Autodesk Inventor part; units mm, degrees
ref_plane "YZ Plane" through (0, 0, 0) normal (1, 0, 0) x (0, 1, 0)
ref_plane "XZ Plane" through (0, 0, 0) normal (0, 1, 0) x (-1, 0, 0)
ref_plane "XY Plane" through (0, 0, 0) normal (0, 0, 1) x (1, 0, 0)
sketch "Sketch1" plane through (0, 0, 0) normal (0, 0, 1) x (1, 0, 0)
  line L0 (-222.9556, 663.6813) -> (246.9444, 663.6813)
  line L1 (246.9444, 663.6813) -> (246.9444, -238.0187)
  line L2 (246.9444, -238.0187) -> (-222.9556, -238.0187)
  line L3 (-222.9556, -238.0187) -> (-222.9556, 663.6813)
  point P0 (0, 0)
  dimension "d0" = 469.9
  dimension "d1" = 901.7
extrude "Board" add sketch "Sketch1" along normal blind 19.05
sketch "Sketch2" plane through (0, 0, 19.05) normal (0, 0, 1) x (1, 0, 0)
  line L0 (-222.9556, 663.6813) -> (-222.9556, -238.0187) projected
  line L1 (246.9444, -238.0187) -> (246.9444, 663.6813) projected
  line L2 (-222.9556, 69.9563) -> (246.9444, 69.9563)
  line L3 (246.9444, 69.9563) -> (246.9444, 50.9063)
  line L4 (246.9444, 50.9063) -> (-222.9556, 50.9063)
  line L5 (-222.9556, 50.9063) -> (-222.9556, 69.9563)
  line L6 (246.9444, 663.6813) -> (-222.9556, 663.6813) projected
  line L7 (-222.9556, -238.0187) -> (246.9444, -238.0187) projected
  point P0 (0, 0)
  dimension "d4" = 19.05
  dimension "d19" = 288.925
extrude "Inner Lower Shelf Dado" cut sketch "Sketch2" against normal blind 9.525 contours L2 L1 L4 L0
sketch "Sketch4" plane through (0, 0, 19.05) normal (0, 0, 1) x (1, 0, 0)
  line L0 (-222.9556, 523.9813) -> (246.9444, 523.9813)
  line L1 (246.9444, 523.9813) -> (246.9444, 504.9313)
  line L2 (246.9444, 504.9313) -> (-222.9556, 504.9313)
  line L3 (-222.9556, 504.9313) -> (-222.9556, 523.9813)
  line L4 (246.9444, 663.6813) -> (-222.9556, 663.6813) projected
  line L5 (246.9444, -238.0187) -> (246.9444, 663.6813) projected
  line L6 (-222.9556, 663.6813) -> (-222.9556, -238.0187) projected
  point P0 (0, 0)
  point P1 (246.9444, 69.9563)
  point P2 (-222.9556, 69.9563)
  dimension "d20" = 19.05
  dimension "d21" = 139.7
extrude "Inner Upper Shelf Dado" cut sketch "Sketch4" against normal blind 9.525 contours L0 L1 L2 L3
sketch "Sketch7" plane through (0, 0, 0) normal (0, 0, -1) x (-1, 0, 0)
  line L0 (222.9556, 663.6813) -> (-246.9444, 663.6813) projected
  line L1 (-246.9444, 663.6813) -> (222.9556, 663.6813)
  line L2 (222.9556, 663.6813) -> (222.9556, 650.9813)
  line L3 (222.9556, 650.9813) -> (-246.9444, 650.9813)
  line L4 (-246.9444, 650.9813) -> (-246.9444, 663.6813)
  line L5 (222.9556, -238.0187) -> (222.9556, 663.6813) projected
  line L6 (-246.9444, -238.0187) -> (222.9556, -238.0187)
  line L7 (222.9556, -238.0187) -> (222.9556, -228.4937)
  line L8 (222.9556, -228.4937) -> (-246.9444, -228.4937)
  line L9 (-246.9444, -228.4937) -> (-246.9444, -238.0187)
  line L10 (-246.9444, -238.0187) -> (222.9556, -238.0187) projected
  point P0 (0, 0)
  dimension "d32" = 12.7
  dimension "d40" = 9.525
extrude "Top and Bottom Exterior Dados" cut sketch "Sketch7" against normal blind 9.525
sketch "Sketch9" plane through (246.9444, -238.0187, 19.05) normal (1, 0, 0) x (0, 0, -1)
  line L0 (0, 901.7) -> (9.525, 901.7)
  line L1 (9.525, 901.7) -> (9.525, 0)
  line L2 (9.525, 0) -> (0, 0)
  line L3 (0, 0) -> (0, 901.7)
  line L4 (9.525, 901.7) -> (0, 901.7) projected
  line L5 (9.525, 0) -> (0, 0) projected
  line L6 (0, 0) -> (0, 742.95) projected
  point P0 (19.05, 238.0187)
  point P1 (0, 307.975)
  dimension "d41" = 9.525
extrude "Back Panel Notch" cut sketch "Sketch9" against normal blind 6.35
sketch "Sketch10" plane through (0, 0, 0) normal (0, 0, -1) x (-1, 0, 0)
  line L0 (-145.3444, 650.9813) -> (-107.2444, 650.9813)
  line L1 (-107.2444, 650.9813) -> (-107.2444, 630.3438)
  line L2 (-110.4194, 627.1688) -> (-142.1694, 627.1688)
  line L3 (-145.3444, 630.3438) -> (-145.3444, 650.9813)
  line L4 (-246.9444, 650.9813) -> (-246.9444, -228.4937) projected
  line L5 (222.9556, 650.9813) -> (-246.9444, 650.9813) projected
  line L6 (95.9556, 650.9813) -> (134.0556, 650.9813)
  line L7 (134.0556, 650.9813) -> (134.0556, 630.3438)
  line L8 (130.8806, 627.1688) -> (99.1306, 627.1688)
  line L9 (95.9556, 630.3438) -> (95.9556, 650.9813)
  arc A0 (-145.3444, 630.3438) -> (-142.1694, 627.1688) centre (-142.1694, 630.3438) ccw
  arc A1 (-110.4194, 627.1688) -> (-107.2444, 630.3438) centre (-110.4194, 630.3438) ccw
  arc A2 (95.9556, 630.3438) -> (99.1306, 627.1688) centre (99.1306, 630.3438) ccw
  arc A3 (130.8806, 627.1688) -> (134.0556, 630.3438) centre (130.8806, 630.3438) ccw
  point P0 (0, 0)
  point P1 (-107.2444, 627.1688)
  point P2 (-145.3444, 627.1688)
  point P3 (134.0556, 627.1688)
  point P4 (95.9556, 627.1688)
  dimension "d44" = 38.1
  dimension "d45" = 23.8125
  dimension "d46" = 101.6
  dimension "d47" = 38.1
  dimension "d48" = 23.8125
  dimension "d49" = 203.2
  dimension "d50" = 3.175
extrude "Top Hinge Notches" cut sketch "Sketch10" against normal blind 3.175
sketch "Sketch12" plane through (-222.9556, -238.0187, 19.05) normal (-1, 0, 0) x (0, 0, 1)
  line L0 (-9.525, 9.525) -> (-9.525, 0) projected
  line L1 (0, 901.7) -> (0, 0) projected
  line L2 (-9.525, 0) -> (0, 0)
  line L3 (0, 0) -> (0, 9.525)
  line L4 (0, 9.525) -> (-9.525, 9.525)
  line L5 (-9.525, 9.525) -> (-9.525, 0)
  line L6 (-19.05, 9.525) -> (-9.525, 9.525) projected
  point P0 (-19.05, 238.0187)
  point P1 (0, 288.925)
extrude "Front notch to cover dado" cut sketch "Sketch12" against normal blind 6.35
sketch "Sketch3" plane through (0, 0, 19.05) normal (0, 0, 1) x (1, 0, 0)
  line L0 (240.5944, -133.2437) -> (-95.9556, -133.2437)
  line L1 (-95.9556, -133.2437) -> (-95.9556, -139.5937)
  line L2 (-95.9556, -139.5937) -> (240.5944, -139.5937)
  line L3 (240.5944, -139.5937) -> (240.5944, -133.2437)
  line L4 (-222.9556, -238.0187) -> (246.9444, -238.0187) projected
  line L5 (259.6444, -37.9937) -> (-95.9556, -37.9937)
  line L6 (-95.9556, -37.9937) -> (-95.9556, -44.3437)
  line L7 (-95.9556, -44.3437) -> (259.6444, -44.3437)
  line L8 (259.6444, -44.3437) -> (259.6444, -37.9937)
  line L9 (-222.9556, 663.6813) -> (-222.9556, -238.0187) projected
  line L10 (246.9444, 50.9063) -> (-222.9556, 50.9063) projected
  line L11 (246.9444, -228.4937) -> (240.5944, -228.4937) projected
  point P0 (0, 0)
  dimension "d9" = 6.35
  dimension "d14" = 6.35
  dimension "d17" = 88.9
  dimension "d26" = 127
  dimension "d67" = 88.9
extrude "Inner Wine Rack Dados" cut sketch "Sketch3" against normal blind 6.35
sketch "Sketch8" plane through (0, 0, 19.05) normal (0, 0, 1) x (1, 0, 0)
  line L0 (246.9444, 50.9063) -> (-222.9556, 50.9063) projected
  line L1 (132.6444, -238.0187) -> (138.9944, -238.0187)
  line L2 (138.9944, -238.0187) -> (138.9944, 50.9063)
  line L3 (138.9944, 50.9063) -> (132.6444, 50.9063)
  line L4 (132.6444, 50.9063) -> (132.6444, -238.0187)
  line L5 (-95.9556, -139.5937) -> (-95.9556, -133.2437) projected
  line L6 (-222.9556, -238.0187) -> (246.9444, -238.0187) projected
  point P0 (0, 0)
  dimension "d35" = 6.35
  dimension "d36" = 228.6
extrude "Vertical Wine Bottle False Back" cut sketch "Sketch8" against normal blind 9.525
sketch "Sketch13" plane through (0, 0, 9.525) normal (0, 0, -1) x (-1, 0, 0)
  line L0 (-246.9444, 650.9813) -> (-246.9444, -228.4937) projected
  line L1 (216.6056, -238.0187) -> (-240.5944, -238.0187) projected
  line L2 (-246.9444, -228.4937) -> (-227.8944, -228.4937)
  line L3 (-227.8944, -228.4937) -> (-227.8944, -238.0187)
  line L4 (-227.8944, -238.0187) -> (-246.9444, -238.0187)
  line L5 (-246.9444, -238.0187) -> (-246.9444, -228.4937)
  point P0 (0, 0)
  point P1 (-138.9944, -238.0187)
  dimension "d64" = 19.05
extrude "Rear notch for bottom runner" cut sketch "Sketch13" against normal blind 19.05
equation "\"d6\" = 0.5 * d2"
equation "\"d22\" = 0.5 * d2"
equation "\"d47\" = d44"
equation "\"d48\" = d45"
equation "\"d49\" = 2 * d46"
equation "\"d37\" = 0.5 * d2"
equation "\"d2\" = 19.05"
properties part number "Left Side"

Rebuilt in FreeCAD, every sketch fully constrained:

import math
import FreeCAD as App
import Part
import Sketcher

V = App.Vector
Q = App.Units.Quantity

doc = App.newDocument("Part")
body = doc.addObject("PartDesign::Body", "Body")

sketch1 = body.newObject("Sketcher::SketchObject", "Sketch")
sketch1.AttachmentSupport = (doc.getObject("XY_Plane"), [""])
sketch1.MapMode = "FlatFace"
sketch1.addGeometry([
    Part.LineSegment(V(247, 664, 0), V(-223, 664, 0)),
    Part.LineSegment(V(-223, 664, 0), V(-223, -238, 0)),
    Part.LineSegment(V(-223, -238, 0), V(247, -238, 0)),
    Part.LineSegment(V(247, -238, 0), V(247, 664, 0)),
], False)
sketch1.addConstraint([
    Sketcher.Constraint("Coincident", 0, 2, 1, 1),
    Sketcher.Constraint("Coincident", 1, 2, 2, 1),
    Sketcher.Constraint("Coincident", 2, 2, 3, 1),
    Sketcher.Constraint("Coincident", 3, 2, 0, 1),
    Sketcher.Constraint("Horizontal", 0),
    Sketcher.Constraint("Vertical", 1),
    Sketcher.Constraint("Horizontal", 2),
    Sketcher.Constraint("Vertical", 3),
    Sketcher.Constraint("DistanceX", 0, 2, 0, 1, Q("18.5 in")),
    Sketcher.Constraint("DistanceY", 1, 2, 1, 1, Q("35.5 in")),
    Sketcher.Constraint("DistanceX", 0, 2, -1, 1, 222.9556),
    Sketcher.Constraint("DistanceY", -1, 1, 0, 2, 663.6813),
])
pad1 = body.newObject("PartDesign::Pad", "Pad")
pad1.Profile = sketch1
pad1.Length = Q("0.75 in")

sketch2 = body.newObject("Sketcher::SketchObject", "Sketch001")
sketch2.AttachmentSupport = (doc.getObject("XY_Plane"), [""])
sketch2.MapMode = "FlatFace"
sketch2.AttachmentOffset = App.Placement(V(0, 0, 0.75 * 25.4), App.Rotation())
sketch2.addGeometry([
    Part.LineSegment(V(247, 70, 0), V(-223, 70, 0)),
    Part.LineSegment(V(-223, 70, 0), V(-223, 51, 0)),
    Part.LineSegment(V(-223, 51, 0), V(247, 51, 0)),
    Part.LineSegment(V(247, 51, 0), V(247, 70, 0)),
], False)
sketch2.addConstraint([
    Sketcher.Constraint("Coincident", 0, 2, 1, 1),
    Sketcher.Constraint("Coincident", 1, 2, 2, 1),
    Sketcher.Constraint("Coincident", 2, 2, 3, 1),
    Sketcher.Constraint("Coincident", 3, 2, 0, 1),
    Sketcher.Constraint("Horizontal", 0),
    Sketcher.Constraint("Vertical", 1),
    Sketcher.Constraint("Horizontal", 2),
    Sketcher.Constraint("Vertical", 3),
    Sketcher.Constraint("DistanceY", 1, 2, 1, 1, Q("0.75 in")),
    Sketcher.Constraint("DistanceX", 0, 2, 0, 1, Q("18.5 in")),
    Sketcher.Constraint("DistanceX", 0, 2, -1, 1, 222.9556),
    Sketcher.Constraint("DistanceY", -1, 1, 0, 2, 69.9563),
])
pocket1 = body.newObject("PartDesign::Pocket", "Pocket")
pocket1.Profile = sketch2
pocket1.Length = Q("0.375 in")

sketch3 = body.newObject("Sketcher::SketchObject", "Sketch002")
sketch3.AttachmentSupport = (doc.getObject("XY_Plane"), [""])
sketch3.MapMode = "FlatFace"
sketch3.AttachmentOffset = App.Placement(V(0, 0, 0.75 * 25.4), App.Rotation())
sketch3.addGeometry([
    Part.LineSegment(V(247, 524, 0), V(-223, 524, 0)),
    Part.LineSegment(V(-223, 524, 0), V(-223, 505, 0)),
    Part.LineSegment(V(-223, 505, 0), V(247, 505, 0)),
    Part.LineSegment(V(247, 505, 0), V(247, 524, 0)),
], False)
sketch3.addConstraint([
    Sketcher.Constraint("Coincident", 0, 2, 1, 1),
    Sketcher.Constraint("Coincident", 1, 2, 2, 1),
    Sketcher.Constraint("Coincident", 2, 2, 3, 1),
    Sketcher.Constraint("Coincident", 3, 2, 0, 1),
    Sketcher.Constraint("Horizontal", 0),
    Sketcher.Constraint("Vertical", 1),
    Sketcher.Constraint("Horizontal", 2),
    Sketcher.Constraint("Vertical", 3),
    Sketcher.Constraint("DistanceY", 1, 2, 1, 1, Q("0.75 in")),
    Sketcher.Constraint("DistanceX", 0, 2, 0, 1, Q("18.5 in")),
    Sketcher.Constraint("DistanceX", 0, 2, -1, 1, 222.9556),
    Sketcher.Constraint("DistanceY", -1, 1, 0, 2, 523.9813),
])
pocket2 = body.newObject("PartDesign::Pocket", "Pocket001")
pocket2.Profile = sketch3
pocket2.Length = Q("0.375 in")

sketch4 = body.newObject("Sketcher::SketchObject", "Sketch003")
sketch4.AttachmentSupport = (doc.getObject("XY_Plane"), [""])
sketch4.MapMode = "FlatFace"
sketch4.addGeometry([
    Part.LineSegment(V(-223, 651, 0), V(-223, 664, 0)),
    Part.LineSegment(V(-223, 664, 0), V(247, 664, 0)),
    Part.LineSegment(V(247, 664, 0), V(247, 651, 0)),
    Part.LineSegment(V(247, 651, 0), V(-223, 651, 0)),
    Part.LineSegment(V(-223, -238, 0), V(-223, -228, 0)),
    Part.LineSegment(V(-223, -228, 0), V(247, -228, 0)),
    Part.LineSegment(V(247, -228, 0), V(247, -238, 0)),
    Part.LineSegment(V(247, -238, 0), V(-223, -238, 0)),
], False)
sketch4.addConstraint([
    Sketcher.Constraint("Coincident", 0, 2, 1, 1),
    Sketcher.Constraint("Coincident", 1, 2, 2, 1),
    Sketcher.Constraint("Coincident", 2, 2, 3, 1),
    Sketcher.Constraint("Coincident", 3, 2, 0, 1),
    Sketcher.Constraint("Coincident", 4, 2, 5, 1),
    Sketcher.Constraint("Coincident", 5, 2, 6, 1),
    Sketcher.Constraint("Coincident", 6, 2, 7, 1),
    Sketcher.Constraint("Coincident", 7, 2, 4, 1),
    Sketcher.Constraint("Vertical", 0),
    Sketcher.Constraint("Horizontal", 1),
    Sketcher.Constraint("Vertical", 2),
    Sketcher.Constraint("Horizontal", 3),
    Sketcher.Constraint("Vertical", 4),
    Sketcher.Constraint("Horizontal", 5),
    Sketcher.Constraint("Vertical", 6),
    Sketcher.Constraint("Horizontal", 7),
    Sketcher.Constraint("Vertical", 3, 2, 4, 2),
    Sketcher.Constraint("Vertical", 2, 2, 5, 2),
    Sketcher.Constraint("DistanceY", 0, 1, 0, 2, Q("0.5 in")),
    Sketcher.Constraint("DistanceY", 4, 1, 4, 2, Q("0.375 in")),
    Sketcher.Constraint("DistanceX", 1, 1, 1, 2, Q("18.5 in")),
    Sketcher.Constraint("DistanceY", 6, 2, 2, 2, Q("35 in")),
    Sketcher.Constraint("DistanceX", 0, 2, -1, 1, 222.9556),
    Sketcher.Constraint("DistanceY", -1, 1, 0, 2, 663.6813),
])
pocket3 = body.newObject("PartDesign::Pocket", "Pocket002")
pocket3.Profile = sketch4
pocket3.Length = Q("0.375 in")
pocket3.Reversed = True

sketch5 = body.newObject("Sketcher::SketchObject", "Sketch004")
sketch5.AttachmentSupport = (doc.getObject("YZ_Plane"), [""])
sketch5.MapMode = "FlatFace"
sketch5.AttachmentOffset = App.Placement(V(0, 0, 246.9444), App.Rotation())
sketch5.addGeometry([
    Part.LineSegment(V(664, 10, 0), V(664, 19, 0)),
    Part.LineSegment(V(664, 19, 0), V(-238, 19, 0)),
    Part.LineSegment(V(-238, 19, 0), V(-238, 10, 0)),
    Part.LineSegment(V(-238, 10, 0), V(664, 10, 0)),
], False)
sketch5.addConstraint([
    Sketcher.Constraint("Coincident", 0, 2, 1, 1),
    Sketcher.Constraint("Coincident", 1, 2, 2, 1),
    Sketcher.Constraint("Coincident", 2, 2, 3, 1),
    Sketcher.Constraint("Coincident", 3, 2, 0, 1),
    Sketcher.Constraint("Vertical", 0),
    Sketcher.Constraint("Horizontal", 1),
    Sketcher.Constraint("Vertical", 2),
    Sketcher.Constraint("Horizontal", 3),
    Sketcher.Constraint("DistanceY", 0, 1, 0, 2, Q("0.375 in")),
    Sketcher.Constraint("DistanceX", 1, 2, 1, 1, Q("35.5 in")),
    Sketcher.Constraint("DistanceY", -1, 1, 2, 2, Q("0.375 in")),
    Sketcher.Constraint("DistanceX", -1, 1, 0, 2, 663.6813),
])
pocket4 = body.newObject("PartDesign::Pocket", "Pocket003")
pocket4.Profile = sketch5
pocket4.Length = Q("0.25 in")

sketch6 = body.newObject("Sketcher::SketchObject", "Sketch005")
sketch6.AttachmentSupport = (doc.getObject("XY_Plane"), [""])
sketch6.MapMode = "FlatFace"
sketch6.addGeometry([
    Part.LineSegment(V(-134.1, 651, 0), V(-96, 651, 0)),
    Part.LineSegment(V(-96, 651, 0), V(-96, 630.3, 0)),
    Part.ArcOfCircle(Part.Circle(V(-99.1, 630.3, 0), V(0, 0, 1), 3.2), math.radians(-90), math.radians(0)),
    Part.LineSegment(V(-99.1, 627.2, 0), V(-130.9, 627.2, 0)),
    Part.ArcOfCircle(Part.Circle(V(-130.9, 630.3, 0), V(0, 0, 1), 3.2), math.radians(180), math.radians(270)),
    Part.LineSegment(V(-134.1, 630.3, 0), V(-134.1, 651, 0)),
    Part.LineSegment(V(107.2, 651, 0), V(145.3, 651, 0)),
    Part.LineSegment(V(145.3, 651, 0), V(145.3, 630.3, 0)),
    Part.ArcOfCircle(Part.Circle(V(142.2, 630.3, 0), V(0, 0, 1), 3.2), math.radians(-90), math.radians(0)),
    Part.LineSegment(V(142.2, 627.2, 0), V(110.4, 627.2, 0)),
    Part.ArcOfCircle(Part.Circle(V(110.4, 630.3, 0), V(0, 0, 1), 3.2), math.radians(180), math.radians(270)),
    Part.LineSegment(V(107.2, 630.3, 0), V(107.2, 651, 0)),
], False)
sketch6.addConstraint([
    Sketcher.Constraint("Coincident", 0, 2, 1, 1),
    Sketcher.Constraint("Tangent", 1, 2, 2, 2),
    Sketcher.Constraint("Tangent", 2, 1, 3, 1),
    Sketcher.Constraint("Tangent", 3, 2, 4, 2),
    Sketcher.Constraint("Tangent", 4, 1, 5, 1),
    Sketcher.Constraint("Coincident", 5, 2, 0, 1),
    Sketcher.Constraint("Coincident", 6, 2, 7, 1),
    Sketcher.Constraint("Tangent", 7, 2, 8, 2),
    Sketcher.Constraint("Tangent", 8, 1, 9, 1),
    Sketcher.Constraint("Tangent", 9, 2, 10, 2),
    Sketcher.Constraint("Tangent", 10, 1, 11, 1),
    Sketcher.Constraint("Coincident", 11, 2, 6, 1),
    Sketcher.Constraint("Horizontal", 0),
    Sketcher.Constraint("Vertical", 1),
    Sketcher.Constraint("Horizontal", 3),
    Sketcher.Constraint("Vertical", 5),
    Sketcher.Constraint("Horizontal", 6),
    Sketcher.Constraint("Vertical", 7),
    Sketcher.Constraint("Horizontal", 9),
    Sketcher.Constraint("Vertical", 11),
    Sketcher.Constraint("Equal", 2, 4),
    Sketcher.Constraint("Equal", 4, 8),
    Sketcher.Constraint("Equal", 8, 10),
    Sketcher.Constraint("Horizontal", 4, 3, 8, 3),
    Sketcher.Constraint("Horizontal", 5, 2, 6, 2),
    Sketcher.Constraint("Equal", 0, 6),
    Sketcher.Constraint("DistanceX", 0, 1, 0, 2, Q("1.5 in")),
    Sketcher.Constraint("Radius", 2, Q("0.125 in")),
    Sketcher.Constraint("DistanceY", 2, 1, 0, 2, Q("0.9375 in")),
    Sketcher.Constraint("DistanceX", 2, 3, 8, 3, Q("9.5 in")),
    Sketcher.Constraint("DistanceX", 2, 3, -1, 1, 99.1306),
    Sketcher.Constraint("DistanceY", -1, 1, 2, 3, 630.3438),
])
pocket5 = body.newObject("PartDesign::Pocket", "Pocket004")
pocket5.Profile = sketch6
pocket5.Length = Q("0.125 in")
pocket5.Reversed = True

sketch7 = body.newObject("Sketcher::SketchObject", "Sketch006")
sketch7.AttachmentSupport = (doc.getObject("YZ_Plane"), [""])
sketch7.MapMode = "FlatFace"
sketch7.AttachmentOffset = App.Placement(V(0, 0, -222.9556), App.Rotation())
sketch7.addGeometry([
    Part.LineSegment(V(-228, 19, 0), V(-228, 10, 0)),
    Part.LineSegment(V(-228, 10, 0), V(-238, 10, 0)),
    Part.LineSegment(V(-238, 10, 0), V(-238, 19, 0)),
    Part.LineSegment(V(-238, 19, 0), V(-228, 19, 0)),
], False)
sketch7.addConstraint([
    Sketcher.Constraint("Coincident", 0, 2, 1, 1),
    Sketcher.Constraint("Coincident", 1, 2, 2, 1),
    Sketcher.Constraint("Coincident", 2, 2, 3, 1),
    Sketcher.Constraint("Coincident", 3, 2, 0, 1),
    Sketcher.Constraint("Vertical", 0),
    Sketcher.Constraint("Horizontal", 1),
    Sketcher.Constraint("Vertical", 2),
    Sketcher.Constraint("Horizontal", 3),
    Sketcher.Constraint("Equal", 3, 0),
    Sketcher.Constraint("DistanceX", 1, 2, 1, 1, Q("0.375 in")),
    Sketcher.Constraint("DistanceY", -1, 1, 2, 2, Q("0.75 in")),
    Sketcher.Constraint("DistanceX", 0, 2, -1, 1, 228.4937),
])
pocket6 = body.newObject("PartDesign::Pocket", "Pocket005")
pocket6.Profile = sketch7
pocket6.Length = Q("0.25 in")
pocket6.Reversed = True

sketch8 = body.newObject("Sketcher::SketchObject", "Sketch007")
sketch8.AttachmentSupport = (doc.getObject("XY_Plane"), [""])
sketch8.MapMode = "FlatFace"
sketch8.AttachmentOffset = App.Placement(V(0, 0, 0.75 * 25.4), App.Rotation())
sketch8.addGeometry([
    Part.LineSegment(V(241, -140, 0), V(241, -133, 0)),
    Part.LineSegment(V(241, -133, 0), V(-96, -133, 0)),
    Part.LineSegment(V(-96, -133, 0), V(-96, -140, 0)),
    Part.LineSegment(V(-96, -140, 0), V(241, -140, 0)),
    Part.LineSegment(V(260, -44, 0), V(260, -38, 0)),
    Part.LineSegment(V(260, -38, 0), V(-96, -38, 0)),
    Part.LineSegment(V(-96, -38, 0), V(-96, -44, 0)),
    Part.LineSegment(V(-96, -44, 0), V(260, -44, 0)),
], False)
sketch8.addConstraint([
    Sketcher.Constraint("Coincident", 0, 2, 1, 1),
    Sketcher.Constraint("Coincident", 1, 2, 2, 1),
    Sketcher.Constraint("Coincident", 2, 2, 3, 1),
    Sketcher.Constraint("Coincident", 3, 2, 0, 1),
    Sketcher.Constraint("Coincident", 4, 2, 5, 1),
    Sketcher.Constraint("Coincident", 5, 2, 6, 1),
    Sketcher.Constraint("Coincident", 6, 2, 7, 1),
    Sketcher.Constraint("Coincident", 7, 2, 4, 1),
    Sketcher.Constraint("Vertical", 0),
    Sketcher.Constraint("Horizontal", 1),
    Sketcher.Constraint("Vertical", 2),
    Sketcher.Constraint("Horizontal", 3),
    Sketcher.Constraint("Vertical", 4),
    Sketcher.Constraint("Horizontal", 5),
    Sketcher.Constraint("Vertical", 6),
    Sketcher.Constraint("Horizontal", 7),
    Sketcher.Constraint("Vertical", 2, 2, 5, 2),
    Sketcher.Constraint("Equal", 2, 4),
    Sketcher.Constraint("DistanceY", 0, 1, 0, 2, Q("0.25 in")),
    Sketcher.Constraint("DistanceY", 1, 2, 6, 2, Q("3.5 in")),
    Sketcher.Constraint("DistanceX", 5, 2, 5, 1, Q("14 in")),
    Sketcher.Constraint("DistanceX", 1, 2, 1, 1, Q("13.25 in")),
    Sketcher.Constraint("DistanceX", -1, 1, 0, 2, 240.5944),
    Sketcher.Constraint("DistanceY", 0, 2, -1, 1, 133.2437),
])
pocket7 = body.newObject("PartDesign::Pocket", "Pocket006")
pocket7.Profile = sketch8
pocket7.Length = Q("0.25 in")

sketch9 = body.newObject("Sketcher::SketchObject", "Sketch008")
sketch9.AttachmentSupport = (doc.getObject("XY_Plane"), [""])
sketch9.MapMode = "FlatFace"
sketch9.AttachmentOffset = App.Placement(V(0, 0, 0.75 * 25.4), App.Rotation())
sketch9.addGeometry([
    Part.LineSegment(V(139, -238, 0), V(139, 51, 0)),
    Part.LineSegment(V(139, 51, 0), V(133, 51, 0)),
    Part.LineSegment(V(133, 51, 0), V(133, -238, 0)),
    Part.LineSegment(V(133, -238, 0), V(139, -238, 0)),
], False)
sketch9.addConstraint([
    Sketcher.Constraint("Coincident", 0, 2, 1, 1),
    Sketcher.Constraint("Coincident", 1, 2, 2, 1),
    Sketcher.Constraint("Coincident", 2, 2, 3, 1),
    Sketcher.Constraint("Coincident", 3, 2, 0, 1),
    Sketcher.Constraint("Vertical", 0),
    Sketcher.Constraint("Horizontal", 1),
    Sketcher.Constraint("Vertical", 2),
    Sketcher.Constraint("Horizontal", 3),
    Sketcher.Constraint("DistanceX", 1, 2, 1, 1, Q("0.25 in")),
    Sketcher.Constraint("DistanceY", 0, 1, 0, 2, Q("11.375 in")),
    Sketcher.Constraint("DistanceX", -1, 1, 0, 2, 138.9944),
    Sketcher.Constraint("DistanceY", -1, 1, 0, 2, 50.9063),
])
pocket8 = body.newObject("PartDesign::Pocket", "Pocket007")
pocket8.Profile = sketch9
pocket8.Length = Q("0.375 in")

sketch10 = body.newObject("Sketcher::SketchObject", "Sketch009")
sketch10.AttachmentSupport = (doc.getObject("XY_Plane"), [""])
sketch10.MapMode = "FlatFace"
sketch10.AttachmentOffset = App.Placement(V(0, 0, 0.375 * 25.4), App.Rotation())
sketch10.addGeometry([
    Part.LineSegment(V(247, -238, 0), V(228, -238, 0)),
    Part.LineSegment(V(228, -238, 0), V(228, -228, 0)),
    Part.LineSegment(V(228, -228, 0), V(247, -228, 0)),
    Part.LineSegment(V(247, -228, 0), V(247, -238, 0)),
], False)
sketch10.addConstraint([
    Sketcher.Constraint("Coincident", 0, 2, 1, 1),
    Sketcher.Constraint("Coincident", 1, 2, 2, 1),
    Sketcher.Constraint("Coincident", 2, 2, 3, 1),
    Sketcher.Constraint("Coincident", 3, 2, 0, 1),
    Sketcher.Constraint("Horizontal", 0),
    Sketcher.Constraint("Vertical", 1),
    Sketcher.Constraint("Horizontal", 2),
    Sketcher.Constraint("Vertical", 3),
    Sketcher.Constraint("DistanceX", 0, 2, 0, 1, Q("0.75 in")),
    Sketcher.Constraint("DistanceY", 1, 1, 1, 2, Q("0.375 in")),
    Sketcher.Constraint("DistanceX", -1, 1, 0, 2, 227.8944),
    Sketcher.Constraint("DistanceY", 0, 2, -1, 1, 238.0187),
])
pocket9 = body.newObject("PartDesign::Pocket", "Pocket008")
pocket9.Profile = sketch10
pocket9.Length = Q("0.75 in")
pocket9.Reversed = True

doc.recompute()
